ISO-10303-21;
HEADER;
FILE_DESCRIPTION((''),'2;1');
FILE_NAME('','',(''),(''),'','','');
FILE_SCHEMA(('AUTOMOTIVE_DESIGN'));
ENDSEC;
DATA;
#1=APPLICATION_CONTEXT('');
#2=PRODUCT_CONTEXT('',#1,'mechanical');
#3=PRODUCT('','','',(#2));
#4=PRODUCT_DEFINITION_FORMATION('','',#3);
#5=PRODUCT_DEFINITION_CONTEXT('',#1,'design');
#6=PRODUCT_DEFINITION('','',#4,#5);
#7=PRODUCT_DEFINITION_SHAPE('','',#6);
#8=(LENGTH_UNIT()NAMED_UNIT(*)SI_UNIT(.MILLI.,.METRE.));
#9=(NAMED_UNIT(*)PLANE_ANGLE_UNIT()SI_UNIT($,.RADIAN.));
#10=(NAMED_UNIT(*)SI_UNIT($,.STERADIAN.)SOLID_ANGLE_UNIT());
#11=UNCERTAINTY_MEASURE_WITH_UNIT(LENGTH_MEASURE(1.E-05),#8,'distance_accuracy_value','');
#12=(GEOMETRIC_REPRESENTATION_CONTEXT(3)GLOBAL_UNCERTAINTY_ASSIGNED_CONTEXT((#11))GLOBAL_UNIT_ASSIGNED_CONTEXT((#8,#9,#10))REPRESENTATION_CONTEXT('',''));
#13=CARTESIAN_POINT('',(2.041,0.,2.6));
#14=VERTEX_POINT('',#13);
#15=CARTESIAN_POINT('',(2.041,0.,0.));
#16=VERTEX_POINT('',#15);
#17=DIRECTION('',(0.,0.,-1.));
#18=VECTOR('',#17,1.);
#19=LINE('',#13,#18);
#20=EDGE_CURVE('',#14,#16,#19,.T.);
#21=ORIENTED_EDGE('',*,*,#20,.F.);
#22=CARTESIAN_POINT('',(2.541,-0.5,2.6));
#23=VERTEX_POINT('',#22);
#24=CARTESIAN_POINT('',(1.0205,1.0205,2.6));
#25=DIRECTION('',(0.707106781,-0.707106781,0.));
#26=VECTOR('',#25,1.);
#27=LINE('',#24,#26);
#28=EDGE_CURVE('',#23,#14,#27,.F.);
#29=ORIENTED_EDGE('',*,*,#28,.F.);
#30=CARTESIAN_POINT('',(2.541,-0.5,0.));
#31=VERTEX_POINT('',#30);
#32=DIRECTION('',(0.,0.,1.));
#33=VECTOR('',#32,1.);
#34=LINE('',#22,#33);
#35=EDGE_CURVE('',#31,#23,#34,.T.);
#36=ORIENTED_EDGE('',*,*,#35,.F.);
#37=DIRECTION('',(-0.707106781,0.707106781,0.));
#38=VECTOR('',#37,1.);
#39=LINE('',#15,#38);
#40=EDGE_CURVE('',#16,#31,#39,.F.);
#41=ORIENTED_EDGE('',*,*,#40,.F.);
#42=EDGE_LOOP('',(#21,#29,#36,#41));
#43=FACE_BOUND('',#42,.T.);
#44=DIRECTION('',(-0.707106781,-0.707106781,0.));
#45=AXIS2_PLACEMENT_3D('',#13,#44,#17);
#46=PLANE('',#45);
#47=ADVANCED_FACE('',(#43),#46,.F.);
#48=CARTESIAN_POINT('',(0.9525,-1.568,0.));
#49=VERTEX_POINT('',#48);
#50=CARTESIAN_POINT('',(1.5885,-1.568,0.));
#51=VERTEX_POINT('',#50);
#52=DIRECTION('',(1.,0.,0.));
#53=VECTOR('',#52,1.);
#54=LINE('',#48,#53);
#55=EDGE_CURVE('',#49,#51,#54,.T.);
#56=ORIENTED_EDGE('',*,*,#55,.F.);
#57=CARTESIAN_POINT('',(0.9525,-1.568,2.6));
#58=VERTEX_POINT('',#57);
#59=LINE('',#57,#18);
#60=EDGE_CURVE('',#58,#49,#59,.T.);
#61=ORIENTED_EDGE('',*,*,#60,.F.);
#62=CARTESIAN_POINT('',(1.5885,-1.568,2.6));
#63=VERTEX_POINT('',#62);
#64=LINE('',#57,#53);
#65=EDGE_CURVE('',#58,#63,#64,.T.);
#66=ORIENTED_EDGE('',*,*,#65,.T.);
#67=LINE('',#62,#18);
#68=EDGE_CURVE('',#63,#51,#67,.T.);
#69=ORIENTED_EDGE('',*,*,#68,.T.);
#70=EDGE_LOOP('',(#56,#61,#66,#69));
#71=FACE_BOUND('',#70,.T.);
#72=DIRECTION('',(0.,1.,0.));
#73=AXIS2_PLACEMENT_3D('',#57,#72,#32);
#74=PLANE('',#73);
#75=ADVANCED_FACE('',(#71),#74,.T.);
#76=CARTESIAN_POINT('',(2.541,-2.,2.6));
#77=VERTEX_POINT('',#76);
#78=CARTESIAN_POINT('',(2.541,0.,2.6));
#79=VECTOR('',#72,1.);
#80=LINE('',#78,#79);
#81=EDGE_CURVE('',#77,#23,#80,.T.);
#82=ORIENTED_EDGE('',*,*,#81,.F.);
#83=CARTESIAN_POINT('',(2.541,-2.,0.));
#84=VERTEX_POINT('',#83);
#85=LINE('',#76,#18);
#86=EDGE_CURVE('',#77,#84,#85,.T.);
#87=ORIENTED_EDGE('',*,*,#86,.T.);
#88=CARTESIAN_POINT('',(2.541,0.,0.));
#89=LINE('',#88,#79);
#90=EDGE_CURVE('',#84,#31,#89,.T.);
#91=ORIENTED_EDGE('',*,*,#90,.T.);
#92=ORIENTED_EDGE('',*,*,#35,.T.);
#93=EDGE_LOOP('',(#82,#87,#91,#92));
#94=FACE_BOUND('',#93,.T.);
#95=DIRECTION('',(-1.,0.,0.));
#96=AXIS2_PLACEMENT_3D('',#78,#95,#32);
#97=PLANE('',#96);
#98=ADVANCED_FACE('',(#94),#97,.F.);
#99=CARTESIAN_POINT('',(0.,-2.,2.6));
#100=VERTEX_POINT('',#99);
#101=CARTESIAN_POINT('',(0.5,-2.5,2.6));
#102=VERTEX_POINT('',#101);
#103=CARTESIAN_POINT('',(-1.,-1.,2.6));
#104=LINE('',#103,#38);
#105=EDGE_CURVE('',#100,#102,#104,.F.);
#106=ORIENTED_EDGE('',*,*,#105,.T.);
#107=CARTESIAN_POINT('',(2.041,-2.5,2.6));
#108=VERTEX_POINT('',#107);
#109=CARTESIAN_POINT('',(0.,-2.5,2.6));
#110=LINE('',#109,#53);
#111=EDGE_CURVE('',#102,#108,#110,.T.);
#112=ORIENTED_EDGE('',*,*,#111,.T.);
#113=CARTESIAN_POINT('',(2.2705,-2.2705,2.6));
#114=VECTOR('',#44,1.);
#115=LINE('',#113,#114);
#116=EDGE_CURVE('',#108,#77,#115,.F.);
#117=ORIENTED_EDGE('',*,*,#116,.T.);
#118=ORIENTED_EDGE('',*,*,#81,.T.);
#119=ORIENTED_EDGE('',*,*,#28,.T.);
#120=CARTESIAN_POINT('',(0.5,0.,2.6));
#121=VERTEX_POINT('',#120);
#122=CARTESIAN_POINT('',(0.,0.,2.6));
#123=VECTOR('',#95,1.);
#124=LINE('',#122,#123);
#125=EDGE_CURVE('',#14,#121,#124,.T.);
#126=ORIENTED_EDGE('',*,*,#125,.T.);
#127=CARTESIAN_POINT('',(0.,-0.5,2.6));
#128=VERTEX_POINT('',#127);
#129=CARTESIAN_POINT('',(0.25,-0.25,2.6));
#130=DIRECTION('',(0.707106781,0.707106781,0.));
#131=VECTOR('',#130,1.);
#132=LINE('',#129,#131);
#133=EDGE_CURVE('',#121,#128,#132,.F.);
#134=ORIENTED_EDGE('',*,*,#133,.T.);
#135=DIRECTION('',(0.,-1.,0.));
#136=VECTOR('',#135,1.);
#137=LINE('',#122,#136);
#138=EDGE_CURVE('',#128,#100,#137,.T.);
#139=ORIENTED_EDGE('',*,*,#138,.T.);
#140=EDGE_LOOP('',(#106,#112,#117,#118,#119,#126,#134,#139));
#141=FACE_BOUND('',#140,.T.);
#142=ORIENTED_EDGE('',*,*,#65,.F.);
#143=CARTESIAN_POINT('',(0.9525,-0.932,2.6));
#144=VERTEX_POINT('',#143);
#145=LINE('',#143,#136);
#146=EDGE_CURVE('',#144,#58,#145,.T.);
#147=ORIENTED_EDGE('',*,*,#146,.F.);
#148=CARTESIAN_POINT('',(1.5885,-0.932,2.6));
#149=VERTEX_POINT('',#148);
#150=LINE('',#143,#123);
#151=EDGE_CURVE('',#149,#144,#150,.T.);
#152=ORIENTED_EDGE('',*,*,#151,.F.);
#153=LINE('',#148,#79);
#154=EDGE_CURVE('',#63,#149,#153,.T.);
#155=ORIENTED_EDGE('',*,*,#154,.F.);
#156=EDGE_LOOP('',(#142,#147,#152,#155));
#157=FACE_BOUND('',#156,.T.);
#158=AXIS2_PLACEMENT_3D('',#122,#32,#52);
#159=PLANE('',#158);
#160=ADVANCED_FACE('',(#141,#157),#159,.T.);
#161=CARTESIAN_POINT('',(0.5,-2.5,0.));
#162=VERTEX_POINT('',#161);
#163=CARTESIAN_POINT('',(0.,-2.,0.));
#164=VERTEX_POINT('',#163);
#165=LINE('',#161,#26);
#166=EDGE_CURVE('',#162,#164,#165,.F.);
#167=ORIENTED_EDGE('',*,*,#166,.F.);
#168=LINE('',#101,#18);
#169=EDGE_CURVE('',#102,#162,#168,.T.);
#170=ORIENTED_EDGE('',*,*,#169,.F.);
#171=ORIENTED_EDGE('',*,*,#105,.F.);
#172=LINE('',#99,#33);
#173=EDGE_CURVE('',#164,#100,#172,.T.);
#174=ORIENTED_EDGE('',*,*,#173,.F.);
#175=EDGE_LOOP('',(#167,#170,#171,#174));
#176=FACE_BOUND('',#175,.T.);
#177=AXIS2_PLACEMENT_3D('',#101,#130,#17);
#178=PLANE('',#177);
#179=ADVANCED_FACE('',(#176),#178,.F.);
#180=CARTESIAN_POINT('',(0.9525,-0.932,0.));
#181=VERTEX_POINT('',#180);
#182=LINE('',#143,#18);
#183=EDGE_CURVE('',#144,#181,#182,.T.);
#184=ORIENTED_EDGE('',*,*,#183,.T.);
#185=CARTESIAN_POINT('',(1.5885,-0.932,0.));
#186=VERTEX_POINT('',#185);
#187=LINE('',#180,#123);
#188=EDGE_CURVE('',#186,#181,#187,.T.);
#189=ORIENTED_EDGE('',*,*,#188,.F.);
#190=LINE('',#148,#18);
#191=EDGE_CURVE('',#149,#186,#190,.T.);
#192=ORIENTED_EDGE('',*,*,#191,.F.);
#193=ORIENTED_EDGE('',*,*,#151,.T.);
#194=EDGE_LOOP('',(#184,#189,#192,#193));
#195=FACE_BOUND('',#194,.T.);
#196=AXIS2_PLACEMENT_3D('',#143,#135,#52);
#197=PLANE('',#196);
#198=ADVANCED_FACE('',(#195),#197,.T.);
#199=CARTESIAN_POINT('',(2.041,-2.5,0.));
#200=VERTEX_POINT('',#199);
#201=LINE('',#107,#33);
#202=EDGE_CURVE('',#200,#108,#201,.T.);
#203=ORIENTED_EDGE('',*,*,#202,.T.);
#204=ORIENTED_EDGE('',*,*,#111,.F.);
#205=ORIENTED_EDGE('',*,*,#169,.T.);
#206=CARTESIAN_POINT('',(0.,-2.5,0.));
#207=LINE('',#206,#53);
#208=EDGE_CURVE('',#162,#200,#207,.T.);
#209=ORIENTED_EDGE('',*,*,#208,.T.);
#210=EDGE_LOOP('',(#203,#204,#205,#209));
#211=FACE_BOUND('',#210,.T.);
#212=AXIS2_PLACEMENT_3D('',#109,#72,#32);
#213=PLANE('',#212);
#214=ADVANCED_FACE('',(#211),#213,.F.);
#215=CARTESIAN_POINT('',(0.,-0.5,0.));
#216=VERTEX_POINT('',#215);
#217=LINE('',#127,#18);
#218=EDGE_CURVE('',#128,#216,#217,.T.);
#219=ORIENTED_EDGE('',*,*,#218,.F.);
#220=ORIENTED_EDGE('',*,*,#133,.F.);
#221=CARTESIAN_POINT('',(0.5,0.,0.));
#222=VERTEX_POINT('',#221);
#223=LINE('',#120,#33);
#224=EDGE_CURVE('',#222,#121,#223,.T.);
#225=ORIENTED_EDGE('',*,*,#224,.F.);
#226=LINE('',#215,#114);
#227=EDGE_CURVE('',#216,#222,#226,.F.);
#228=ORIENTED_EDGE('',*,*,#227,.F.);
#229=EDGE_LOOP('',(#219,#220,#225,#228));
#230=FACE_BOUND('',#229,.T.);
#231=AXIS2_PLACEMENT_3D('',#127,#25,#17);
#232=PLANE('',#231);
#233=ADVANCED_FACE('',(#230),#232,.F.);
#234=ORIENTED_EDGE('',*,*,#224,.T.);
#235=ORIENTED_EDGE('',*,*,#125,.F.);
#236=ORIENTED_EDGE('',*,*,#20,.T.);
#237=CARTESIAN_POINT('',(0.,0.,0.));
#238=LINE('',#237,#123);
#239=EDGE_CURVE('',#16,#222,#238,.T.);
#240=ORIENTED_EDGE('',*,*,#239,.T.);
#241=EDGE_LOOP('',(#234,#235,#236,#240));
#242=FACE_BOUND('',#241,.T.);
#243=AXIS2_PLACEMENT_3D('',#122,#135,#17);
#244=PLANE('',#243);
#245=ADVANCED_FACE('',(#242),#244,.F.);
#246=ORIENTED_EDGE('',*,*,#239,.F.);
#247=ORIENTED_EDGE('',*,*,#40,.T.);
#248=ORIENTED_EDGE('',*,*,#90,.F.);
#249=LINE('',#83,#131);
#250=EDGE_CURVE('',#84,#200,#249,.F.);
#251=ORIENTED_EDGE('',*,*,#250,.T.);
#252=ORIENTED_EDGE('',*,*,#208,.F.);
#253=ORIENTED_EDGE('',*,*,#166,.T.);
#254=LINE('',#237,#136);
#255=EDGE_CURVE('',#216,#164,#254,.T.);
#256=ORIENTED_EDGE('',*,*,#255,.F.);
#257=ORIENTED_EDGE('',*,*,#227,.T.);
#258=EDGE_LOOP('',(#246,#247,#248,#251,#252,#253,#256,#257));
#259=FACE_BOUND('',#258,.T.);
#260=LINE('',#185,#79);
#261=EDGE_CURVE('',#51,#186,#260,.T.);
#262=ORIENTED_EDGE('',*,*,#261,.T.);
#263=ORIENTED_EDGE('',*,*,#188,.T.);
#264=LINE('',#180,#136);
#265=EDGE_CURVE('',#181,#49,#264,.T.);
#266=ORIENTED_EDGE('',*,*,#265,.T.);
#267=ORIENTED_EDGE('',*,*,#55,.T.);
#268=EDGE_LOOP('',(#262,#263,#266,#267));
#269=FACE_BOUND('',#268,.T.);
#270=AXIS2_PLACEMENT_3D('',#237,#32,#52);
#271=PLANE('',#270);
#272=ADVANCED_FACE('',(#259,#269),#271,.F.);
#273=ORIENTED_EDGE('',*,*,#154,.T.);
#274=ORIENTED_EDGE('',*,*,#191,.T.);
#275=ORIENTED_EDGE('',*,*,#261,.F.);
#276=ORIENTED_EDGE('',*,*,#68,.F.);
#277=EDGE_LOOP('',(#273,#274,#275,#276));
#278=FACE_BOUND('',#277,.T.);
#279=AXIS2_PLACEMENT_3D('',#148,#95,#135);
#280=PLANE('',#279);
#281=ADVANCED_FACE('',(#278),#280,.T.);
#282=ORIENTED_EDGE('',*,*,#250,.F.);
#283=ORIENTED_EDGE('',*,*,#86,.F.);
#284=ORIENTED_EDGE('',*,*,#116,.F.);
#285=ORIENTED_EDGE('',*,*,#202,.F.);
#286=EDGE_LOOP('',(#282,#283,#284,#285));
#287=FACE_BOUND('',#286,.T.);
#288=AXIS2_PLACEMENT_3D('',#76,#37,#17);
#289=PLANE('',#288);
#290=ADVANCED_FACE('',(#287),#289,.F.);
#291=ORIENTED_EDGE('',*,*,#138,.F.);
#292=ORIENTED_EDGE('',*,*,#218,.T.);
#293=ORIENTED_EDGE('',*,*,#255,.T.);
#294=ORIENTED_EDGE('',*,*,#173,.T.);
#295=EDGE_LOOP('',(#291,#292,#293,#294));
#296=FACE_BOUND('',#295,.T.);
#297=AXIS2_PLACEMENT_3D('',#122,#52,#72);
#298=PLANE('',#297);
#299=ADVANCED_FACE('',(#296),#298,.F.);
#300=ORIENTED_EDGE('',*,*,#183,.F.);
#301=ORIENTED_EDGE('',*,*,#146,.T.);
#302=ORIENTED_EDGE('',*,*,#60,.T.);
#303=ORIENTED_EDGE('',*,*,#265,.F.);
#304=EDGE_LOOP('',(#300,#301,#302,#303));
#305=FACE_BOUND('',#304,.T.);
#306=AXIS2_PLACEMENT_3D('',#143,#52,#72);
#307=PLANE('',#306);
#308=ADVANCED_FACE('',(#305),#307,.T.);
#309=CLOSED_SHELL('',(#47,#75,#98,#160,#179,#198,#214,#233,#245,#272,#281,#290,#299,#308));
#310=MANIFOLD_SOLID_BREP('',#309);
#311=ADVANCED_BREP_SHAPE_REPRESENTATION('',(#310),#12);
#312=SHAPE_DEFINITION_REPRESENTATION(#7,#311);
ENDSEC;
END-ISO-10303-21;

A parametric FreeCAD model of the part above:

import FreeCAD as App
import Part
import Sketcher
Q = App.Units.Quantity


def edges_at(feature, points):
    """Names of the edges that pass closest to the given points."""
    edges = feature.Shape.Edges
    near = lambda p: min(range(len(edges)), key=lambda i: edges[i].distToShape(Part.Vertex(*p))[0])
    return sorted({f"Edge{near(p) + 1}" for p in points})

doc = App.newDocument("Part")
body = doc.addObject("PartDesign::Body", "Body")

# Sketch on XY plane
sketch1 = doc.addObject("Sketcher::SketchObject", "Sketch")
body.addObject(sketch1)
sketch1.AttachmentSupport = (doc.XY_Plane, [""])
sketch1.MapMode = "FlatFace"
sketch1.addGeometry(Part.LineSegment(App.Vector(0, 0, 0), App.Vector(0, -2.5, 0)), False)
sketch1.addGeometry(Part.LineSegment(App.Vector(0, -2.5, 0), App.Vector(2.5, -2.5, 0)), False)
sketch1.addGeometry(Part.LineSegment(App.Vector(2.5, -2.5, 0), App.Vector(2.5, 0, 0)), False)
sketch1.addGeometry(Part.LineSegment(App.Vector(2.5, 0, 0), App.Vector(0, 0, 0)), False)
sketch1.addGeometry(Part.LineSegment(App.Vector(1.6, -1.6, 0), App.Vector(1, -1.6, 0)), False)
sketch1.addGeometry(Part.LineSegment(App.Vector(1, -1.6, 0), App.Vector(1, -0.9, 0)), False)
sketch1.addGeometry(Part.LineSegment(App.Vector(1, -0.9, 0), App.Vector(1.6, -0.9, 0)), False)
sketch1.addGeometry(Part.LineSegment(App.Vector(1.6, -0.9, 0), App.Vector(1.6, -1.6, 0)), False)
sketch1.addConstraint(Sketcher.Constraint("Coincident", 0, 2, 1, 1))
sketch1.addConstraint(Sketcher.Constraint("Coincident", 1, 2, 2, 1))
sketch1.addConstraint(Sketcher.Constraint("Coincident", 2, 2, 3, 1))
sketch1.addConstraint(Sketcher.Constraint("Coincident", 3, 2, 0, 1))
sketch1.addConstraint(Sketcher.Constraint("Coincident", 4, 2, 5, 1))
sketch1.addConstraint(Sketcher.Constraint("Coincident", 5, 2, 6, 1))
sketch1.addConstraint(Sketcher.Constraint("Coincident", 6, 2, 7, 1))
sketch1.addConstraint(Sketcher.Constraint("Coincident", 7, 2, 4, 1))
sketch1.addConstraint(Sketcher.Constraint("Vertical", 0))
sketch1.addConstraint(Sketcher.Constraint("Horizontal", 1))
sketch1.addConstraint(Sketcher.Constraint("Vertical", 2))
sketch1.addConstraint(Sketcher.Constraint("Horizontal", 3))
sketch1.addConstraint(Sketcher.Constraint("Horizontal", 4))
sketch1.addConstraint(Sketcher.Constraint("Vertical", 5))
sketch1.addConstraint(Sketcher.Constraint("Horizontal", 6))
sketch1.addConstraint(Sketcher.Constraint("Vertical", 7))
sketch1.addConstraint(Sketcher.Constraint("Coincident", 3, 2, -1, 1))
sketch1.addConstraint(Sketcher.Constraint("Equal", 6, 5))
sketch1.addConstraint(Sketcher.Constraint("DistanceY", 0, 2, 0, 1, Q("2.5 mm")))
sketch1.addConstraint(Sketcher.Constraint("DistanceX", 1, 1, 1, 2, Q("2.541 mm")))
sketch1.addConstraint(Sketcher.Constraint("DistanceX", 4, 2, 4, 1, Q("0.636 mm")))
sketch1.addConstraint(Sketcher.Constraint("DistanceY", 4, 2, -1, 1, Q("1.568 mm")))
sketch1.addConstraint(Sketcher.Constraint("DistanceX", -1, 1, 4, 2, Q("0.9525 mm")))
pad1 = doc.addObject("PartDesign::Pad", "Pad")
body.addObject(pad1)
pad1.Profile = sketch1
pad1.Length = 2.6
doc.recompute()

chamfer = doc.addObject("PartDesign::Chamfer", "Chamfer")
body.addObject(chamfer)
chamfer.Base = (pad1, edges_at(pad1, [
    (0, 0, 1.3),
    (2.541, 0, 1.3),
    (2.541, -2.5, 1.3),
    (0, -2.5, 1.3),
]))
chamfer.Size = 0.5

doc.recompute()
